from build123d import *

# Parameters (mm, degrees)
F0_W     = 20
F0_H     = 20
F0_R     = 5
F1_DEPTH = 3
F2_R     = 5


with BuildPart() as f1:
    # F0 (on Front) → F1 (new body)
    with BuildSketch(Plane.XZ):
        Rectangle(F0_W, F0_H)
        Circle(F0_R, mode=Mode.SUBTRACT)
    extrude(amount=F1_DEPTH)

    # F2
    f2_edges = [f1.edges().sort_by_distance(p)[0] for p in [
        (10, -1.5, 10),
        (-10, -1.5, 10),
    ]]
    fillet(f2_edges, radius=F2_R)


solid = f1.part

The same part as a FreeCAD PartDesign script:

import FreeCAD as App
import Part
import Sketcher

V = App.Vector


def edges_at(feature, points):
    """Names of the edges that pass closest to the given points."""
    edges = feature.Shape.Edges
    near = lambda p: min(range(len(edges)), key=lambda i: edges[i].distToShape(Part.Vertex(*p))[0])
    return sorted({f"Edge{near(p) + 1}" for p in points})


def add_polygon(sketch, points):
    """Adds a closed chain of lines whose ends are joined by coincident constraints."""
    first, n = sketch.GeometryCount, len(points)
    for a, b in zip(points, points[1:] + points[:1]):
        sketch.addGeometry(Part.LineSegment(App.Vector(*a, 0), App.Vector(*b, 0)), False)
    for i in range(n):
        sketch.addConstraint(Sketcher.Constraint("Coincident", first + i, 2, first + (i + 1) % n, 1))

doc = App.newDocument("Part")
params = doc.addObject("Spreadsheet::Sheet", "Params")
for row, (alias, value) in enumerate([
    ("sketch1_diameter", "10 mm"),
    ("sketch1_width", "20 mm"),
    ("pad1_length", "3 mm"),
    ("fillet_radius", "5 mm"),
], start=1):
    params.set(f"A{row}", alias)
    params.set(f"B{row}", "=" + value)
    params.setAlias(f"B{row}", alias)

body = doc.addObject("PartDesign::Body", "Body")

# Sketch on XZ plane
sketch1 = body.newObject("Sketcher::SketchObject", "Sketch")
sketch1.AttachmentSupport = (doc.getObject("XZ_Plane"), [""])
sketch1.MapMode = "FlatFace"
add_polygon(sketch1, [(-10, 10), (-10, -10), (10, -10), (10, 10)])  # lines 0-3
sketch1.addGeometry(Part.Circle(V(0, 0, 0), V(0, 0, 1), 5), False)  # 4
sketch1.addConstraint([
    Sketcher.Constraint("Vertical", 0),
    Sketcher.Constraint("Horizontal", 1),
    Sketcher.Constraint("Vertical", 2),
    Sketcher.Constraint("Horizontal", 3),
    Sketcher.Constraint("Coincident", 4, 3, -1, 1),
    Sketcher.Constraint("Symmetric", 0, 2, 2, 2, -1, 1),
    Sketcher.Constraint("Equal", 3, 0),
    Sketcher.Constraint("Diameter", 4, 10.0),
    Sketcher.Constraint("DistanceX", 1, 1, 1, 2, 20.0),
])
sketch1.setExpression("Constraints[11]", "Params.sketch1_diameter")
sketch1.setExpression("Constraints[12]", "Params.sketch1_width")
pad1 = body.newObject("PartDesign::Pad", "Pad")
pad1.Profile = sketch1
pad1.setExpression("Length", "Params.pad1_length")
doc.recompute()

fillet = body.newObject("PartDesign::Fillet", "Fillet")
fillet.Base = (pad1, edges_at(pad1, [(10, -1.5, 10), (-10, -1.5, 10)]))
fillet.setExpression("Radius", "Params.fillet_radius")

doc.recompute()
